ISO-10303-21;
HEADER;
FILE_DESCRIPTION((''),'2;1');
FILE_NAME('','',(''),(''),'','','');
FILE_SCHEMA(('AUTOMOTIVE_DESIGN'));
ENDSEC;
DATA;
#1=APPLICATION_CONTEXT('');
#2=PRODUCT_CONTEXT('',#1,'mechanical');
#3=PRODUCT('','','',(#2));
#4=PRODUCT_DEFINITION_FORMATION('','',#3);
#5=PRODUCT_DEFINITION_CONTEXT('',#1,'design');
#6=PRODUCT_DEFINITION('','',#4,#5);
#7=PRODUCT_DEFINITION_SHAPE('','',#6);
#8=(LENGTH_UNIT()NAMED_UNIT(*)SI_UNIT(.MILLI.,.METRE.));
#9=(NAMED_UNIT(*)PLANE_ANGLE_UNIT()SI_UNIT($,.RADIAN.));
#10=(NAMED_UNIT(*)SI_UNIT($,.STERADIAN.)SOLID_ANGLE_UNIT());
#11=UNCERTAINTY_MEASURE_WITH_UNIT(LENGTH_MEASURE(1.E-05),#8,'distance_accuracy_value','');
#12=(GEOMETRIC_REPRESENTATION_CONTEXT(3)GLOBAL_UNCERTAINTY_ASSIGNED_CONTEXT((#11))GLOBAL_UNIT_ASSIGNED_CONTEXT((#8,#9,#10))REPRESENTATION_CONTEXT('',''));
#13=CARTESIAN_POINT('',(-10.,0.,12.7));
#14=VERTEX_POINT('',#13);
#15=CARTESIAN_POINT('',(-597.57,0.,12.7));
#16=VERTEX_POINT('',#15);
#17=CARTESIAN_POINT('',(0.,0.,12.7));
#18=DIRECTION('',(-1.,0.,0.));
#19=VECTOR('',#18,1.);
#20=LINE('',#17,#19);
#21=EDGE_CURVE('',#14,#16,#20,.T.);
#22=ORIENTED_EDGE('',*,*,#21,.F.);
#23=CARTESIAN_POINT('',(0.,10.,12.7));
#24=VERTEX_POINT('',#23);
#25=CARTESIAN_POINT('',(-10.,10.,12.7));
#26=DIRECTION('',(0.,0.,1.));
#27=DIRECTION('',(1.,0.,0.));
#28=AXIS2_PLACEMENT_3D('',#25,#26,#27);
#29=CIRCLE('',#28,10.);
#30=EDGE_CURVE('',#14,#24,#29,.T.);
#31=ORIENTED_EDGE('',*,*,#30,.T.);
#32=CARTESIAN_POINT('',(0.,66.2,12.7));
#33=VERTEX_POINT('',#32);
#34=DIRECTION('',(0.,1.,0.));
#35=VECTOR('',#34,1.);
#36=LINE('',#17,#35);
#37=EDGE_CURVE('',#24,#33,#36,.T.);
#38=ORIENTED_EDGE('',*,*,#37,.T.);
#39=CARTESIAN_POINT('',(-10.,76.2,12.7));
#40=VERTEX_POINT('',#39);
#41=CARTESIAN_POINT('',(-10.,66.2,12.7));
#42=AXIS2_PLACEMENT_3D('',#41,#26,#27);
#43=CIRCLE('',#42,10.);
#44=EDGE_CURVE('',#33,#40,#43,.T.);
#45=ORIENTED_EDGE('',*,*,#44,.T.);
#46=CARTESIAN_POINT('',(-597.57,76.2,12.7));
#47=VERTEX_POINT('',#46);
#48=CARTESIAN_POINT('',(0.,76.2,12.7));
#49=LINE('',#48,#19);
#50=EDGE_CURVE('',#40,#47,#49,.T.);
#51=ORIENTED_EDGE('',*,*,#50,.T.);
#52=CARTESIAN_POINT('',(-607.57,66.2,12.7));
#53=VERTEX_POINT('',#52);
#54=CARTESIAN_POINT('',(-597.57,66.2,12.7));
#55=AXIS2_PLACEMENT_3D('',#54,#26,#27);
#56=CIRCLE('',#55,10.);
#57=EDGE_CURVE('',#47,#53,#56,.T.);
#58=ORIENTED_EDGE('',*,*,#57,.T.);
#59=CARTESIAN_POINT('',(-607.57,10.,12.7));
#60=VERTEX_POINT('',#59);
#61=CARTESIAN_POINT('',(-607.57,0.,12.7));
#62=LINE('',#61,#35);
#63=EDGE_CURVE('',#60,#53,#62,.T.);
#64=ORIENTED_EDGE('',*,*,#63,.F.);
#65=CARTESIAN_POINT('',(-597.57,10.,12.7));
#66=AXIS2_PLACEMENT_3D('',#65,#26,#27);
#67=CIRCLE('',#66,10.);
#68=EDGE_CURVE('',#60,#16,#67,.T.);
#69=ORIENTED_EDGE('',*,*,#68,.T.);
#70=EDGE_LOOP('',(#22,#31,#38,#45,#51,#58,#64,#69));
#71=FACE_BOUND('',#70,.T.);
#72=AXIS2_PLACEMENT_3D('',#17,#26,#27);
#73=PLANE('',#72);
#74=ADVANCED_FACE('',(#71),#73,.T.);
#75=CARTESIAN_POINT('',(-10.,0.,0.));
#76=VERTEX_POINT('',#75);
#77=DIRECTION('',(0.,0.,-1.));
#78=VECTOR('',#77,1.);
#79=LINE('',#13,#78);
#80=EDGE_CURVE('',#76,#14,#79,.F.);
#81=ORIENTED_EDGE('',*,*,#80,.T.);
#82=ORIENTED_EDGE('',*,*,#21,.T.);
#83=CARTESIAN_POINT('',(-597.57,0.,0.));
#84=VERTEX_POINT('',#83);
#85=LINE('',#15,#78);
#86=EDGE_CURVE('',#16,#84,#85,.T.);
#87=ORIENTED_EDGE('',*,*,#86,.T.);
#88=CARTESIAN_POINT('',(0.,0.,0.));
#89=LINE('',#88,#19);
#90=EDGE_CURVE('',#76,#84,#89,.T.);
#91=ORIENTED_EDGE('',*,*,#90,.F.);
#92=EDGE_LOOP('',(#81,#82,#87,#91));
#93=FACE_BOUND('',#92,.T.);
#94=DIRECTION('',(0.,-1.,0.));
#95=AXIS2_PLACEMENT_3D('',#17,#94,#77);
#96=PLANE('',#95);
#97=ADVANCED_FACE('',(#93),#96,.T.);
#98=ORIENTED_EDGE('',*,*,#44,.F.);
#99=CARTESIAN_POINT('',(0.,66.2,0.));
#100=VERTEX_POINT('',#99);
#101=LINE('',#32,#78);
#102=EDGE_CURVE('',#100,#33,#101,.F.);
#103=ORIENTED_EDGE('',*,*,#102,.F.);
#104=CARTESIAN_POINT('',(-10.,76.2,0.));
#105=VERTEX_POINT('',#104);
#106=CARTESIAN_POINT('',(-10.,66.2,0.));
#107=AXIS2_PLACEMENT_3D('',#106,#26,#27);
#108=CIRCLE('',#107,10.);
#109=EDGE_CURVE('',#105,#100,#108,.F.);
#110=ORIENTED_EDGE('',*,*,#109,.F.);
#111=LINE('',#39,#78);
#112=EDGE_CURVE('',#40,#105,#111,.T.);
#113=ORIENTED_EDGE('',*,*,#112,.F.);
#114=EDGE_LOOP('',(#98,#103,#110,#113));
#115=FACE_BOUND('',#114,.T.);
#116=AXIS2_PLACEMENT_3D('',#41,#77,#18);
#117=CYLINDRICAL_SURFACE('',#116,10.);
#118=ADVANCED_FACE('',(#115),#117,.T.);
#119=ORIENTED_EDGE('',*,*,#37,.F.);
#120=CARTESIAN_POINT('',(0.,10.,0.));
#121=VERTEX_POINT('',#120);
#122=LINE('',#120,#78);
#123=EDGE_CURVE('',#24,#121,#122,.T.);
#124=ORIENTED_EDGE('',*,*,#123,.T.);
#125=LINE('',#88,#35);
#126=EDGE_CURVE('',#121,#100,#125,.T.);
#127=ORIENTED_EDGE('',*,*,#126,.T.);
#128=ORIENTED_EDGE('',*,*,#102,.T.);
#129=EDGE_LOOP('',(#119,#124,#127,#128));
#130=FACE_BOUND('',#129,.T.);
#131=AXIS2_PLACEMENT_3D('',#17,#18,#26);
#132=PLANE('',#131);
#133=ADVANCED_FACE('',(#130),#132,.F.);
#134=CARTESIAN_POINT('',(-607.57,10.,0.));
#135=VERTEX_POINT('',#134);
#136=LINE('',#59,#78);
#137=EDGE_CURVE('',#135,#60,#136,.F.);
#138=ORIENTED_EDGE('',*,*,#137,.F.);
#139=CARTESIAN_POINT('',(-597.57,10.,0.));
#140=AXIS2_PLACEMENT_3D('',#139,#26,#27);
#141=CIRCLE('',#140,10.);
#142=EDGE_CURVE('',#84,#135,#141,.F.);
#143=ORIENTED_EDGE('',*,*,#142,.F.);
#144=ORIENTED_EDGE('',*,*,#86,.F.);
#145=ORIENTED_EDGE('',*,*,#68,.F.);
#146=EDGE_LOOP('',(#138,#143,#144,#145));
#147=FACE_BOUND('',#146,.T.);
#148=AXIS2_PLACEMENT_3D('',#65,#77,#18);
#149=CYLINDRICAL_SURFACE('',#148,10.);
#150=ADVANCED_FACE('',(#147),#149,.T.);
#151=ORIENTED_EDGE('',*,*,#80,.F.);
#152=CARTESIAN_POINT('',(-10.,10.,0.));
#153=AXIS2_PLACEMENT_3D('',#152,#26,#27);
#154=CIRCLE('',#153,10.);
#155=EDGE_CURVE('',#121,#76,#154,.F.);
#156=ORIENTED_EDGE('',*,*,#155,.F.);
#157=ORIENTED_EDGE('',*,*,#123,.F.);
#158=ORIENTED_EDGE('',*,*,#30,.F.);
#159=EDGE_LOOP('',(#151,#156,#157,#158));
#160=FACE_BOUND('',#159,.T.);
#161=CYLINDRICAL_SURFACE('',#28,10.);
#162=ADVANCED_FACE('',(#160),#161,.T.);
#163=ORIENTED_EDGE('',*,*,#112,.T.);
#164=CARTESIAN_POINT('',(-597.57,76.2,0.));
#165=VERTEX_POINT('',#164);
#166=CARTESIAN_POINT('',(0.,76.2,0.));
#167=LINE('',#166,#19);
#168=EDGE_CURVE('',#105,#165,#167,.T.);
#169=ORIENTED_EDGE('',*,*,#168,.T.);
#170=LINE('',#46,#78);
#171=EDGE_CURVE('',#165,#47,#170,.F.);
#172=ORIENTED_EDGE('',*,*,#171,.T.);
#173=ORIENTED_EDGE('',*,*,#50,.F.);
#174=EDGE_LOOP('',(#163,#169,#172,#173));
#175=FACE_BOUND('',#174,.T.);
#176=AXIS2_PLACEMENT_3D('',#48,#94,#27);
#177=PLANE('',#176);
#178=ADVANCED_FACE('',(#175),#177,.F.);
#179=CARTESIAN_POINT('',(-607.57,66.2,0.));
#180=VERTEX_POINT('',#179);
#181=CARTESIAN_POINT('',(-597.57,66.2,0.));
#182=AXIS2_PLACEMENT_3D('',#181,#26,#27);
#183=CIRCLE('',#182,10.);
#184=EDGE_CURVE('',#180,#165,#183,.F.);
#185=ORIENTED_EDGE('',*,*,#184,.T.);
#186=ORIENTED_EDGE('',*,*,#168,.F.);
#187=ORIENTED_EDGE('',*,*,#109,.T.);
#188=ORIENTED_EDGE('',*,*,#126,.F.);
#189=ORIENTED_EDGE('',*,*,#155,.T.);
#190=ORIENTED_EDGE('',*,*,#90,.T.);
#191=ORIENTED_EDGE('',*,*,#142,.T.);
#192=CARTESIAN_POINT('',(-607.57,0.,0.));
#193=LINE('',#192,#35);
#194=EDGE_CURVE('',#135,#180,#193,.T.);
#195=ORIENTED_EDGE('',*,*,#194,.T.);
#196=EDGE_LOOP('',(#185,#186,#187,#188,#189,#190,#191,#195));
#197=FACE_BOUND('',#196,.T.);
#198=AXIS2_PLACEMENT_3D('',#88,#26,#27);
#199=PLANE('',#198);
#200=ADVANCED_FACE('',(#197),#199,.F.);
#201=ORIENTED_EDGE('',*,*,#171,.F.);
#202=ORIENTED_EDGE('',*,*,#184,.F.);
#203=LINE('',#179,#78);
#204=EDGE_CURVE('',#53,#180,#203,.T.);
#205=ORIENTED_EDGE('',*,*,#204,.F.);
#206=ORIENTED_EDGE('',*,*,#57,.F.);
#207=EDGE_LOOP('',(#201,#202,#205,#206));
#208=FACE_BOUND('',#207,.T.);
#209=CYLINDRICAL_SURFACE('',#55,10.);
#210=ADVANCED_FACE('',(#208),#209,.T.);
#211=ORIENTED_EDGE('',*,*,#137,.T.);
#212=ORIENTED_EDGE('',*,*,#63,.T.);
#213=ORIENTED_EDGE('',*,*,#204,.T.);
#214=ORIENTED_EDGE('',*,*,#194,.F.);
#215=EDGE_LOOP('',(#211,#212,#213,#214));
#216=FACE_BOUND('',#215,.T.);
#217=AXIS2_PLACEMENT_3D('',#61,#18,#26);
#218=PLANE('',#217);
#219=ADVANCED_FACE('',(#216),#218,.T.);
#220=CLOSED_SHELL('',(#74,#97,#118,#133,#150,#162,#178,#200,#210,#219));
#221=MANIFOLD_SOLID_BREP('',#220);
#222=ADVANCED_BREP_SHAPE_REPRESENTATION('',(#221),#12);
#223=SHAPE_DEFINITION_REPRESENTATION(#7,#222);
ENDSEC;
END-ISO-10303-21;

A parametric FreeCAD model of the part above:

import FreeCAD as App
import Part
import Sketcher

V = App.Vector
Q = App.Units.Quantity


def edges_at(feature, points):
    """Names of the edges that pass closest to the given points."""
    edges = feature.Shape.Edges
    near = lambda p: min(range(len(edges)), key=lambda i: edges[i].distToShape(Part.Vertex(*p))[0])
    return sorted({f"Edge{near(p) + 1}" for p in points})

doc = App.newDocument("Part")
body = doc.addObject("PartDesign::Body", "Body")

# Sketch on XY plane
sketch1 = body.newObject("Sketcher::SketchObject", "Sketch")
sketch1.AttachmentSupport = (doc.getObject("XY_Plane"), [""])
sketch1.MapMode = "FlatFace"
sketch1.addGeometry(Part.LineSegment(V(-607.57, 76.2, 0), V(-607.57, 0, 0)), False)
sketch1.addGeometry(Part.LineSegment(V(-607.57, 0, 0), V(0, 0, 0)), False)
sketch1.addGeometry(Part.LineSegment(V(0, 0, 0), V(0, 76.2, 0)), False)
sketch1.addGeometry(Part.LineSegment(V(0, 76.2, 0), V(-607.57, 76.2, 0)), False)
sketch1.addConstraint(Sketcher.Constraint("Coincident", 0, 2, 1, 1))
sketch1.addConstraint(Sketcher.Constraint("Coincident", 1, 2, 2, 1))
sketch1.addConstraint(Sketcher.Constraint("Coincident", 2, 2, 3, 1))
sketch1.addConstraint(Sketcher.Constraint("Coincident", 3, 2, 0, 1))
sketch1.addConstraint(Sketcher.Constraint("Vertical", 0))
sketch1.addConstraint(Sketcher.Constraint("Horizontal", 1))
sketch1.addConstraint(Sketcher.Constraint("Vertical", 2))
sketch1.addConstraint(Sketcher.Constraint("Horizontal", 3))
sketch1.addConstraint(Sketcher.Constraint("Coincident", 1, 2, -1, 1))
sketch1.addConstraint(Sketcher.Constraint("DistanceY", 0, 2, 0, 1, Q("3 in")))
sketch1.addConstraint(Sketcher.Constraint("DistanceX", 1, 1, 1, 2, Q("607.57 mm")))
pad1 = body.newObject("PartDesign::Pad", "Pad")
pad1.Profile = sketch1
pad1.Length = Q("0.5 in")
doc.recompute()

fillet = body.newObject("PartDesign::Fillet", "Fillet")
fillet.Base = (pad1, edges_at(pad1, [
    (0, 0, 6.35),
    (-607.57, 0, 6.35),
    (-607.57, 76.2, 6.35),
    (0, 76.2, 6.35),
]))
fillet.Radius = 10

doc.recompute()
